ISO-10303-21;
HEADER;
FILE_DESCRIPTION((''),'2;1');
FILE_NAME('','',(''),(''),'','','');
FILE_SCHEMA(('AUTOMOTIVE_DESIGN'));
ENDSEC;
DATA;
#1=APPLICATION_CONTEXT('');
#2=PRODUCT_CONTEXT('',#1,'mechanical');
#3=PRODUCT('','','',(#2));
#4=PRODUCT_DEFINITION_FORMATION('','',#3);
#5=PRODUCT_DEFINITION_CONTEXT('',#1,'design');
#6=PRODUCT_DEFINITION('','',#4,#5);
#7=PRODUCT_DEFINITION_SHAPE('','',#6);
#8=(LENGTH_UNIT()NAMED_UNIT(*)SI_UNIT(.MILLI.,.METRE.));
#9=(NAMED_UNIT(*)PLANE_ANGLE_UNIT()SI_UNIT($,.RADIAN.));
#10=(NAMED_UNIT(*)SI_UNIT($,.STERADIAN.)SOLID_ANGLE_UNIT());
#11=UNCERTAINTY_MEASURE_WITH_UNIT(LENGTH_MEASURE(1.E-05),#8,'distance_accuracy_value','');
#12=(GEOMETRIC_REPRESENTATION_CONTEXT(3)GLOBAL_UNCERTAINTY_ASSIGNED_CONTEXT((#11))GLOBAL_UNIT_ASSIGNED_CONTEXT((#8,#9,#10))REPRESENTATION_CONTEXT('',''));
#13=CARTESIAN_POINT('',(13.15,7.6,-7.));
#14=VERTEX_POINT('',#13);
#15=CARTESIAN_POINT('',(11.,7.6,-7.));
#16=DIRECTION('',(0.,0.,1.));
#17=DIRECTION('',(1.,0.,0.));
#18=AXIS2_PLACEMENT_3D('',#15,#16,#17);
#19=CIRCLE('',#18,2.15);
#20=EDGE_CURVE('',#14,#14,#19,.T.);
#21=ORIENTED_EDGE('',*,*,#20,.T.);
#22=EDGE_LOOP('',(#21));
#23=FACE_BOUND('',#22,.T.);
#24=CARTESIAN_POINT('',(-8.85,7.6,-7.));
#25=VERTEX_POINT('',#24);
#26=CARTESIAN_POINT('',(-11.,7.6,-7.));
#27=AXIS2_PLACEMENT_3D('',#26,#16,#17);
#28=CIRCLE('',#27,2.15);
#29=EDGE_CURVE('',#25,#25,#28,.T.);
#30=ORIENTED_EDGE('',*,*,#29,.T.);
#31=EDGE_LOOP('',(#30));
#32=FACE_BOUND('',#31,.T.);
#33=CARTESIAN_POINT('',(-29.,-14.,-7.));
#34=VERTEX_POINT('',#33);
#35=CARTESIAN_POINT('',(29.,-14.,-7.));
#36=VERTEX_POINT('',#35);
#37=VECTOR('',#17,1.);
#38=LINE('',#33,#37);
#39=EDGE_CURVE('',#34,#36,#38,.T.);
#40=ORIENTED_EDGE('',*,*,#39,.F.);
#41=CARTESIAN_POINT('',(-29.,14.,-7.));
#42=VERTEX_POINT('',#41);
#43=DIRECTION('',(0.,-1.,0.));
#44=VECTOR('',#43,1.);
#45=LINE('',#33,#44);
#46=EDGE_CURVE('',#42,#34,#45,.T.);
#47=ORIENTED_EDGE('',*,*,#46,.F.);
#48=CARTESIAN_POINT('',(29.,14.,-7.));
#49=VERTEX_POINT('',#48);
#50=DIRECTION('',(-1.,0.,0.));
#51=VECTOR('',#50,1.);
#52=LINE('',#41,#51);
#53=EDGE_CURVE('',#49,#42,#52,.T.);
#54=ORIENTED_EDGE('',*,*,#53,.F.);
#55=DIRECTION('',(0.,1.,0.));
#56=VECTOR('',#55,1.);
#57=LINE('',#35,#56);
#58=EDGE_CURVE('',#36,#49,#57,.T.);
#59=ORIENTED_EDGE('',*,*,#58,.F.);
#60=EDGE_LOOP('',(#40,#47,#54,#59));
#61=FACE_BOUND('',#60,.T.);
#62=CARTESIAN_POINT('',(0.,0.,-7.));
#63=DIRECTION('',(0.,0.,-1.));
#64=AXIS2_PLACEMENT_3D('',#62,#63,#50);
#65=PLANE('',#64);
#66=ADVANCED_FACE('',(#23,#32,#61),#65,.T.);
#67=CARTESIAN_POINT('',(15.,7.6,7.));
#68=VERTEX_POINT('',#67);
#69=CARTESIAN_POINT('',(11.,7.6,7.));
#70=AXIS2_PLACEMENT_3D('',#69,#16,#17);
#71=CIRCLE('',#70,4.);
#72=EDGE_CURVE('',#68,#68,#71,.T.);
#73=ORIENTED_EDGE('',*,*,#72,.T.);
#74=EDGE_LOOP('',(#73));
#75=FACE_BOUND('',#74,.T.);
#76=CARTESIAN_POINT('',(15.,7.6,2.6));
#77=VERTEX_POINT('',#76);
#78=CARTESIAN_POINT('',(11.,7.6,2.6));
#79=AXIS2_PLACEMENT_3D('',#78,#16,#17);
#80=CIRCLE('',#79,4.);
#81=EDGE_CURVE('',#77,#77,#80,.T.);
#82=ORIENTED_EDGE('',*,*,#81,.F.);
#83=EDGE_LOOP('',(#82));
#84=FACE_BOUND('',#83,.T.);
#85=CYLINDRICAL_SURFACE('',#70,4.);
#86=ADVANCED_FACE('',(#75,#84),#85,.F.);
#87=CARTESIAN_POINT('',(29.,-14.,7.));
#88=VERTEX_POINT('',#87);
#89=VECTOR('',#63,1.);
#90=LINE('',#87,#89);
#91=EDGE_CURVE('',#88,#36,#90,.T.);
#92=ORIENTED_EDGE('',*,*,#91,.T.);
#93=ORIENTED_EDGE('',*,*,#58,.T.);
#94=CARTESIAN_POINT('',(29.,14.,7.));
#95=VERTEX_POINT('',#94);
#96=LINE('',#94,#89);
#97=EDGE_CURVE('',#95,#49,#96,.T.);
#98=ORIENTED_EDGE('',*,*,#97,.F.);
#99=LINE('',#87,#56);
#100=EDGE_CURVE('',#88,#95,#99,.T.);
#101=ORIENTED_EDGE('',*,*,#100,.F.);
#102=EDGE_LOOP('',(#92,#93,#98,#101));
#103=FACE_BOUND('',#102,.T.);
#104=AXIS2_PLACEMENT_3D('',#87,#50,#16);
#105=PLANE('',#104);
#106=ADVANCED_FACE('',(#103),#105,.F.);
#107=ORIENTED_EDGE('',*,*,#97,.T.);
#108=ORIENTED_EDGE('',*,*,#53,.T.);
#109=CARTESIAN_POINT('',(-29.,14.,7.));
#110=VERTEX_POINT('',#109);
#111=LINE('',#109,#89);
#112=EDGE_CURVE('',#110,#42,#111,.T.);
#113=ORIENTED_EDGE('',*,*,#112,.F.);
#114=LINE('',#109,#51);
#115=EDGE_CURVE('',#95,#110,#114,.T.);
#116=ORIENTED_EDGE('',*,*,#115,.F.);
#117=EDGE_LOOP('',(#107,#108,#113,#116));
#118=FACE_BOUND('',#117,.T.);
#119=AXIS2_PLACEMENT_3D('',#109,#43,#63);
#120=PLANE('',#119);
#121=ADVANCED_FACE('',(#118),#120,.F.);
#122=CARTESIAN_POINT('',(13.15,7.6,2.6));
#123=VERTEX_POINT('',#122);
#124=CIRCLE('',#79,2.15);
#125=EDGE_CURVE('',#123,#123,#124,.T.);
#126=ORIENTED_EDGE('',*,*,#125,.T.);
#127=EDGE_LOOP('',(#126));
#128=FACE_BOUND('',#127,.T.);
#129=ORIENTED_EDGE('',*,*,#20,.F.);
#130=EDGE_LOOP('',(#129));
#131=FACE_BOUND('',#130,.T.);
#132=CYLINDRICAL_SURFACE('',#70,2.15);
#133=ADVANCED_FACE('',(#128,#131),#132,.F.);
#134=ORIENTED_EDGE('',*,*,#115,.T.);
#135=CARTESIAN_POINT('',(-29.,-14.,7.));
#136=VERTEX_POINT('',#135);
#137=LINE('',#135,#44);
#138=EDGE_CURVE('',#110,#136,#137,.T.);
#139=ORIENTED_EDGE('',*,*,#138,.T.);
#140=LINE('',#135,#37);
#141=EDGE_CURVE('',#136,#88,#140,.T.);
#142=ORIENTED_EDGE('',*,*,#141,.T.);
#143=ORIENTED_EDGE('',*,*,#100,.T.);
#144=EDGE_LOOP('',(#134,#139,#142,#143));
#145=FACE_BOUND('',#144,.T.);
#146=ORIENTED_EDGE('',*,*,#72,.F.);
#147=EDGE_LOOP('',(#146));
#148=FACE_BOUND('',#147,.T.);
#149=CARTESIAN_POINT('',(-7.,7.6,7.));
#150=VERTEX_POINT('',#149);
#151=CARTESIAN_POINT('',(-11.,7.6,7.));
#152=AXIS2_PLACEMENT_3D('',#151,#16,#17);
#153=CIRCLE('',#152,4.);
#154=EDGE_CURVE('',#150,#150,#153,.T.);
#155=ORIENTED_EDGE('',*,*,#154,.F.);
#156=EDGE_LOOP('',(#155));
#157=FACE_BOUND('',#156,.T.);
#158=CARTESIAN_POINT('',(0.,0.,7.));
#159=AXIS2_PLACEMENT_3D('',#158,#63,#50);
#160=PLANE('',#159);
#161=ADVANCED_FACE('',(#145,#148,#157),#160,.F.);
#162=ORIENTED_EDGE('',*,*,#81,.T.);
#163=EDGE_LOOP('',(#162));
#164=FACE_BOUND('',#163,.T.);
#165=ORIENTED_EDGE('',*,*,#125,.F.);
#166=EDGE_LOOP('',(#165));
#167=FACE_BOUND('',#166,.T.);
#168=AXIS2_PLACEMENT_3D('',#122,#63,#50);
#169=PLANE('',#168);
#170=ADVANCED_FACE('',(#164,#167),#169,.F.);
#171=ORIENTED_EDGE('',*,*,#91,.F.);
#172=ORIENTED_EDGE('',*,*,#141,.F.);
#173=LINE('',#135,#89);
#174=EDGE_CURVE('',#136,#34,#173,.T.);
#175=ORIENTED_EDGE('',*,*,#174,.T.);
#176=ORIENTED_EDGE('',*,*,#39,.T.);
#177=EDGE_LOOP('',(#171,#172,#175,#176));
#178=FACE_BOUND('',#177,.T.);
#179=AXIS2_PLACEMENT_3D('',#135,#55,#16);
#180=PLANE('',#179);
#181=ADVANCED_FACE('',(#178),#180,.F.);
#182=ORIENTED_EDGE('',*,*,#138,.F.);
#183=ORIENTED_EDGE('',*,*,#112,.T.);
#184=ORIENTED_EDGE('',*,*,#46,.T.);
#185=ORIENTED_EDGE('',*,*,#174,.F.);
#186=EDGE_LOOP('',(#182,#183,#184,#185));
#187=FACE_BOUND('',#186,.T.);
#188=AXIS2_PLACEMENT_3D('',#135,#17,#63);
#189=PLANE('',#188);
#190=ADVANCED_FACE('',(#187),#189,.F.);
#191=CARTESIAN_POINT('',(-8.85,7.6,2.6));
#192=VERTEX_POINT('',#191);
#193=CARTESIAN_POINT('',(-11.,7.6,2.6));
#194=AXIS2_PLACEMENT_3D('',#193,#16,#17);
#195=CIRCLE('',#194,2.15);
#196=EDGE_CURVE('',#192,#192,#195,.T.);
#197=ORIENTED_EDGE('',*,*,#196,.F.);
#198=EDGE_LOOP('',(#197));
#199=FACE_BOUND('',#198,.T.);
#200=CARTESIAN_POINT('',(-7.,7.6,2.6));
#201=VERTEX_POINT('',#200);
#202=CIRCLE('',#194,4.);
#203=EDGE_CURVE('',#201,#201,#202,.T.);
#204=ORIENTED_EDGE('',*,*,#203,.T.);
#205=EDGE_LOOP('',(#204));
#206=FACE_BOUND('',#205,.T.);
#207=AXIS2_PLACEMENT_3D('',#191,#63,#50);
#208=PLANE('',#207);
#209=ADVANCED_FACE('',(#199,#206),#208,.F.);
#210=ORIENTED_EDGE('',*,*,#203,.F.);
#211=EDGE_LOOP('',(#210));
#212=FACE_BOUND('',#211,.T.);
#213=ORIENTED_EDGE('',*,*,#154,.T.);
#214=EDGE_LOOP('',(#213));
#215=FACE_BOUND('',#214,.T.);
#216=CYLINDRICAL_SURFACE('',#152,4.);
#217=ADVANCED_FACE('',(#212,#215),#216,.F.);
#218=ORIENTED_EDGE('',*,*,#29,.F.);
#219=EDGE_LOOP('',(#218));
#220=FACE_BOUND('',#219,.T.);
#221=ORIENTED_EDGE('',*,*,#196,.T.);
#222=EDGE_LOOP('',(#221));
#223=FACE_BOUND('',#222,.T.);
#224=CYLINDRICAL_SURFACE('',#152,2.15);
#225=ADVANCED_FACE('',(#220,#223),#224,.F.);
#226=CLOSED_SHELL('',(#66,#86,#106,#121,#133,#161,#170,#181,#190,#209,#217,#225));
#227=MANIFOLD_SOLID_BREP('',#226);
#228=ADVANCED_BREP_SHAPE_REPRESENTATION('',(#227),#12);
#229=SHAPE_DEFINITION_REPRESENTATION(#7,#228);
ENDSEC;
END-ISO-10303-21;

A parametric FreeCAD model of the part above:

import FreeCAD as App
import Part
import Sketcher
from FreeCAD import Vector

doc = App.newDocument("Part")
body = doc.addObject("PartDesign::Body", "Body")

sketch1 = body.newObject("Sketcher::SketchObject", "Sketch")
sketch1.AttachmentSupport = (doc.getObject("XY_Plane"), [""])
sketch1.MapMode = "FlatFace"
sketch1.addGeometry(Part.LineSegment(Vector(-29, 14, 0), Vector(-29, -14, 0)), False)
sketch1.addGeometry(Part.LineSegment(Vector(-29, -14, 0), Vector(29, -14, 0)), False)
sketch1.addGeometry(Part.LineSegment(Vector(29, -14, 0), Vector(29, 14, 0)), False)
sketch1.addGeometry(Part.LineSegment(Vector(29, 14, 0), Vector(-29, 14, 0)), False)
sketch1.addConstraint(Sketcher.Constraint("Coincident", 0, 2, 1, 1))
sketch1.addConstraint(Sketcher.Constraint("Coincident", 1, 2, 2, 1))
sketch1.addConstraint(Sketcher.Constraint("Coincident", 2, 2, 3, 1))
sketch1.addConstraint(Sketcher.Constraint("Coincident", 3, 2, 0, 1))
sketch1.addConstraint(Sketcher.Constraint("Vertical", 0))
sketch1.addConstraint(Sketcher.Constraint("Horizontal", 1))
sketch1.addConstraint(Sketcher.Constraint("Vertical", 2))
sketch1.addConstraint(Sketcher.Constraint("Horizontal", 3))
sketch1.addConstraint(Sketcher.Constraint("Symmetric", 0, 2, 2, 2, -1, 1))
sketch1.addConstraint(Sketcher.Constraint("DistanceX", 1, 1, 1, 2, 58.0))
sketch1.addConstraint(Sketcher.Constraint("DistanceY", 0, 2, 0, 1, 28.0))
pad1 = body.newObject("PartDesign::Pad", "Pad")
pad1.Profile = sketch1
pad1.Length = 14
pad1.Midplane = True

sketch2 = body.newObject("Sketcher::SketchObject", "Sketch001")
sketch2.AttachmentSupport = (doc.getObject("XY_Plane"), [""])
sketch2.MapMode = "FlatFace"
sketch2.AttachmentOffset = App.Placement(Vector(0, 0, 7), App.Rotation())
sketch2.addGeometry(Part.Circle(Vector(-11, 7.6, 0), Vector(0, 0, 1), 2.1), False)
sketch2.addGeometry(Part.Circle(Vector(11, 7.6, 0), Vector(0, 0, 1), 2.1), False)
sketch2.addConstraint(Sketcher.Constraint("Equal", 0, 1))
sketch2.addConstraint(Sketcher.Constraint("Symmetric", 0, 3, 1, 3, -2))
sketch2.addConstraint(Sketcher.Constraint("Diameter", 0, 4.3))
sketch2.addConstraint(Sketcher.Constraint("DistanceX", 0, 3, -1, 1, 11.0))
sketch2.addConstraint(Sketcher.Constraint("DistanceY", -1, 1, 0, 3, 7.6))
doc.recompute()
hole = body.newObject("PartDesign::Hole", "Hole")
hole.Profile = sketch2
hole.ThreadType = "None"
hole.Diameter = 4.3
hole.DepthType = "ThroughAll"
hole.HoleCutType = "Counterbore"
hole.HoleCutDiameter = 8
hole.HoleCutDepth = 4.4

doc.recompute()
